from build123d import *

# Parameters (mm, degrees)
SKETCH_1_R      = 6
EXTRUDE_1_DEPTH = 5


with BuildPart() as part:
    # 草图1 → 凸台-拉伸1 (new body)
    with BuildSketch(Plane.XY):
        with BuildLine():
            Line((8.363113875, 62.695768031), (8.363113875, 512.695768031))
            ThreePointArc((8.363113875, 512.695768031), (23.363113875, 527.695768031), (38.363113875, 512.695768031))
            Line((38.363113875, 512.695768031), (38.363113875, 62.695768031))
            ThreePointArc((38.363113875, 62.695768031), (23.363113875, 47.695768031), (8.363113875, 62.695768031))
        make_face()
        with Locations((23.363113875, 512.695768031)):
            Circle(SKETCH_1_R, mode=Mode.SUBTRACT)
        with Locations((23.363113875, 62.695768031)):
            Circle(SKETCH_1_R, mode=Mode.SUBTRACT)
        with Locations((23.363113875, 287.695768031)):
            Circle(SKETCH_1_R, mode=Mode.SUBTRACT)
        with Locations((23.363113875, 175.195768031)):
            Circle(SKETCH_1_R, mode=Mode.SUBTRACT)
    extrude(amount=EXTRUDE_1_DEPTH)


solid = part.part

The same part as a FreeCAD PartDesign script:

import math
import FreeCAD as App
import Part
import Sketcher
from FreeCAD import Vector
Q = App.Units.Quantity

doc = App.newDocument("Part")
body = doc.addObject("PartDesign::Body", "Body")

sketch1 = doc.addObject("Sketcher::SketchObject", "Sketch")
body.addObject(sketch1)
sketch1.AttachmentSupport = (doc.XY_Plane, [""])
sketch1.MapMode = "FlatFace"
sketch1.addGeometry(Part.LineSegment(Vector(8, 513, 0), Vector(8, 63, 0)), False)
sketch1.addGeometry(Part.ArcOfCircle(Part.Circle(Vector(23, 63, 0), Vector(0, 0, 1), 15), math.radians(180), math.radians(360)), False)
sketch1.addGeometry(Part.LineSegment(Vector(38, 63, 0), Vector(38, 513, 0)), False)
sketch1.addGeometry(Part.ArcOfCircle(Part.Circle(Vector(23, 513, 0), Vector(0, 0, 1), 15), math.radians(0), math.radians(180)), False)
sketch1.addGeometry(Part.Circle(Vector(23, 63, 0), Vector(0, 0, 1), 6), False)
sketch1.addGeometry(Part.Circle(Vector(23, 175, 0), Vector(0, 0, 1), 6), False)
sketch1.addGeometry(Part.Circle(Vector(23, 288, 0), Vector(0, 0, 1), 6), False)
sketch1.addGeometry(Part.Circle(Vector(23, 513, 0), Vector(0, 0, 1), 6), False)
sketch1.addConstraint(Sketcher.Constraint("Tangent", 0, 2, 1, 1))
sketch1.addConstraint(Sketcher.Constraint("Tangent", 1, 2, 2, 1))
sketch1.addConstraint(Sketcher.Constraint("Tangent", 2, 2, 3, 1))
sketch1.addConstraint(Sketcher.Constraint("Tangent", 3, 2, 0, 1))
sketch1.addConstraint(Sketcher.Constraint("Vertical", 0))
sketch1.addConstraint(Sketcher.Constraint("Vertical", 2))
sketch1.addConstraint(Sketcher.Constraint("Coincident", 4, 3, 1, 3))
sketch1.addConstraint(Sketcher.Constraint("Coincident", 7, 3, 3, 3))
sketch1.addConstraint(Sketcher.Constraint("Equal", 4, 5))
sketch1.addConstraint(Sketcher.Constraint("Equal", 5, 6))
sketch1.addConstraint(Sketcher.Constraint("Equal", 6, 7))
sketch1.addConstraint(Sketcher.Constraint("Vertical", 4, 3, 5, 3))
sketch1.addConstraint(Sketcher.Constraint("Vertical", 5, 3, 6, 3))
sketch1.addConstraint(Sketcher.Constraint("Diameter", 4, Q("12 mm")))
sketch1.addConstraint(Sketcher.Constraint("Radius", 1, Q("15 mm")))
sketch1.addConstraint(Sketcher.Constraint("DistanceY", 0, 2, 0, 1, Q("450 mm")))
sketch1.addConstraint(Sketcher.Constraint("DistanceY", 6, 3, 3, 3, Q("225 mm")))
sketch1.addConstraint(Sketcher.Constraint("DistanceY", 1, 3, 5, 3, Q("112.5 mm")))
sketch1.addConstraint(Sketcher.Constraint("DistanceY", -1, 1, 1, 3, Q("62.695768 mm")))
sketch1.addConstraint(Sketcher.Constraint("DistanceX", -1, 1, 1, 3, Q("23.363114 mm")))
pad1 = doc.addObject("PartDesign::Pad", "Pad")
body.addObject(pad1)
pad1.Profile = sketch1
pad1.Length = 5

doc.recompute()
